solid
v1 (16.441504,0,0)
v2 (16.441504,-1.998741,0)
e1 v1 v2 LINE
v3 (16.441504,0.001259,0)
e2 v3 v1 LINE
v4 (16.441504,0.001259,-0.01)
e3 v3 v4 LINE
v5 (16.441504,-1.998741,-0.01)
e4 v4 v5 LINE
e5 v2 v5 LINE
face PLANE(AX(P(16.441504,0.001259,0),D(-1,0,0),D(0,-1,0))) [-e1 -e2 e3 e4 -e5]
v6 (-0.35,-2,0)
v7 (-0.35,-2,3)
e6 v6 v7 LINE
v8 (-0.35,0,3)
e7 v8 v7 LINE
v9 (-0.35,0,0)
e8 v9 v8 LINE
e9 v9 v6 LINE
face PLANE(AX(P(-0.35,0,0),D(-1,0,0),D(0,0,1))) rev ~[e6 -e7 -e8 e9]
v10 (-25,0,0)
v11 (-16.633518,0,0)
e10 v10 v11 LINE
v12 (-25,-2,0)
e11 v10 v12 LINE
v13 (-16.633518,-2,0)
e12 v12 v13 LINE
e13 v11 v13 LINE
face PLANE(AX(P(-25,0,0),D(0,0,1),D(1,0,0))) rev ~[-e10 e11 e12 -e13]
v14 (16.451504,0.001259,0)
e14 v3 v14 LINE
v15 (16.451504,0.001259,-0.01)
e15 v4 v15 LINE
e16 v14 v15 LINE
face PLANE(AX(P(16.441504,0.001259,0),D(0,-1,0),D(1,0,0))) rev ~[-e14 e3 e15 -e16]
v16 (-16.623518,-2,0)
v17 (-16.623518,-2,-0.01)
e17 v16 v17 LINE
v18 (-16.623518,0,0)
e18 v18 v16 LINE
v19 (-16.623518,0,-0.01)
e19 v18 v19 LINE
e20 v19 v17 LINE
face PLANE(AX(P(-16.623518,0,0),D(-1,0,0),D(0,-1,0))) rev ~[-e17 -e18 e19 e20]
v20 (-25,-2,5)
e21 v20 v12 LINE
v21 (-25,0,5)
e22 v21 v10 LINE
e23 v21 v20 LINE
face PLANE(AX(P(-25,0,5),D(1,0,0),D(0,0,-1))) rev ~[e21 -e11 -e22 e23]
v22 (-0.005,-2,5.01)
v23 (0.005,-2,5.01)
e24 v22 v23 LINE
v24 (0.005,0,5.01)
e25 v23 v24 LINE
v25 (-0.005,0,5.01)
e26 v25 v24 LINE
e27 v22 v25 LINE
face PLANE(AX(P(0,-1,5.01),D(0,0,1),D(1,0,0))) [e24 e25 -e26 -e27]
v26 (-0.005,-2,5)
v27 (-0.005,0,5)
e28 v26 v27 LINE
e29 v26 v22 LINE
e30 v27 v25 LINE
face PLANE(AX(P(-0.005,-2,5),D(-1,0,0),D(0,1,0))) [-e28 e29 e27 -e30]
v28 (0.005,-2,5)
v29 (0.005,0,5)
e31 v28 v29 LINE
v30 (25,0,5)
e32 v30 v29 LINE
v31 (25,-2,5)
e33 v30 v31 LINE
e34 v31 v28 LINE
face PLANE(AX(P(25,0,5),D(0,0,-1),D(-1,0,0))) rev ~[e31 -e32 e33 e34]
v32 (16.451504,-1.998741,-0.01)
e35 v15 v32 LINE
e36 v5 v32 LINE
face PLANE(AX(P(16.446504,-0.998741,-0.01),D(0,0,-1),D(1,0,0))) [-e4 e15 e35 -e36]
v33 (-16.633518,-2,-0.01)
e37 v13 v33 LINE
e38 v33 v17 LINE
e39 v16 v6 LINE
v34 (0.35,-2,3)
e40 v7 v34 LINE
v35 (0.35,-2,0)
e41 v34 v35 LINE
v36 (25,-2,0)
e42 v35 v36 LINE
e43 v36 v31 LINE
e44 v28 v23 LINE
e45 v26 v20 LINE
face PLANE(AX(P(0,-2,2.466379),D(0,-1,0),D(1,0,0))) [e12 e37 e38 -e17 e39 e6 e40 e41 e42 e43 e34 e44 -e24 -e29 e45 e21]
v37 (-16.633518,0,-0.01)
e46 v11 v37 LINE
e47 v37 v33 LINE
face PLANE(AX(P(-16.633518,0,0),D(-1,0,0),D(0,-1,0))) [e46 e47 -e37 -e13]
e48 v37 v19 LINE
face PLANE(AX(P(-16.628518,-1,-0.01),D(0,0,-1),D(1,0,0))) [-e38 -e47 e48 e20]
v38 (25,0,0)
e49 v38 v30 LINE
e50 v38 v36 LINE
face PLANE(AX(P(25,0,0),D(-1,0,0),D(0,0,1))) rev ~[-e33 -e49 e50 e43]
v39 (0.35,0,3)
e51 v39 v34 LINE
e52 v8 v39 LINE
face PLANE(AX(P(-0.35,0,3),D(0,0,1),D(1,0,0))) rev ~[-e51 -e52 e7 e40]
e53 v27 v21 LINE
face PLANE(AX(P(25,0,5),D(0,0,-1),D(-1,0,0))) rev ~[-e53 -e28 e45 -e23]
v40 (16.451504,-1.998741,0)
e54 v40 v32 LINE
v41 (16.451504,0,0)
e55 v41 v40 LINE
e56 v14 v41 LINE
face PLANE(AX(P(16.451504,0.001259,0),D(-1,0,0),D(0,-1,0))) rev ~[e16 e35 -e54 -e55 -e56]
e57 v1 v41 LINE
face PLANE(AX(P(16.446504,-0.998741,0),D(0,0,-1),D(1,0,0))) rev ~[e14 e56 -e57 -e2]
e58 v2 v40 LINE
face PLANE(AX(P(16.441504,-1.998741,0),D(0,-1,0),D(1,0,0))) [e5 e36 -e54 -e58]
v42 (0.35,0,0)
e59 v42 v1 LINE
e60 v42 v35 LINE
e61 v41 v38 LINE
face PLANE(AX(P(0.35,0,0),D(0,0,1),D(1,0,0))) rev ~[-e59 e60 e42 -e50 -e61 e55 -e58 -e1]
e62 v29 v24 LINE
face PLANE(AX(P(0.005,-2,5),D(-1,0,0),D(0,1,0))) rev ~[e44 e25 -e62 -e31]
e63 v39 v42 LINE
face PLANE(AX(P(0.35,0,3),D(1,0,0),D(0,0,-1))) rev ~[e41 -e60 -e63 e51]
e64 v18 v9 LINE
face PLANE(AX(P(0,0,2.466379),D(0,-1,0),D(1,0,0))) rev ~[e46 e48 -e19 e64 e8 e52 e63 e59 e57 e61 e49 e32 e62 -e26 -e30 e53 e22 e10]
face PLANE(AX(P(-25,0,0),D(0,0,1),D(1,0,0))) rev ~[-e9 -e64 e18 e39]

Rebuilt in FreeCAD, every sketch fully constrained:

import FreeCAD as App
import Part
import Sketcher
from FreeCAD import Vector

doc = App.newDocument("Part")
body = doc.addObject("PartDesign::Body", "Body")

# Sketch on XZ plane
sketch1 = body.newObject("Sketcher::SketchObject", "Sketch")
sketch1.AttachmentSupport = (doc.getObject("XZ_Plane"), [""])
sketch1.MapMode = "FlatFace"
sketch1.addGeometry([
    Part.LineSegment(Vector(0.35, 3, 0), Vector(0.35, 0, 0)),  # 0
    Part.LineSegment(Vector(0.35, 0, 0), Vector(25, 0, 0)),  # 1
    Part.LineSegment(Vector(25, 0, 0), Vector(25, 5, 0)),  # 2
    Part.LineSegment(Vector(25, 5, 0), Vector(-25, 5, 0)),  # 3
    Part.LineSegment(Vector(-25, 5, 0), Vector(-25, 0, 0)),  # 4
    Part.LineSegment(Vector(-25, 0, 0), Vector(-0.35, 0, 0)),  # 5
    Part.LineSegment(Vector(-0.35, 0, 0), Vector(-0.35, 3, 0)),  # 6
    Part.LineSegment(Vector(-0.35, 3, 0), Vector(0.35, 3, 0)),  # 7
], False)
sketch1.addConstraint([
    Sketcher.Constraint("Coincident", 0, 2, 1, 1),
    Sketcher.Constraint("Coincident", 1, 2, 2, 1),
    Sketcher.Constraint("Coincident", 2, 2, 3, 1),
    Sketcher.Constraint("Coincident", 3, 2, 4, 1),
    Sketcher.Constraint("Coincident", 4, 2, 5, 1),
    Sketcher.Constraint("Coincident", 5, 2, 6, 1),
    Sketcher.Constraint("Coincident", 6, 2, 7, 1),
    Sketcher.Constraint("Coincident", 7, 2, 0, 1),
    Sketcher.Constraint("Vertical", 0),
    Sketcher.Constraint("Horizontal", 1),
    Sketcher.Constraint("Vertical", 2),
    Sketcher.Constraint("Horizontal", 3),
    Sketcher.Constraint("Vertical", 4),
    Sketcher.Constraint("Horizontal", 5),
    Sketcher.Constraint("Vertical", 6),
    Sketcher.Constraint("Horizontal", 7),
    Sketcher.Constraint("Symmetric", 1, 2, 4, 2, -1, 1),
    Sketcher.Constraint("Symmetric", 0, 2, 5, 2, -2),
    Sketcher.Constraint("DistanceX", 3, 2, 3, 1, 50.0),
    Sketcher.Constraint("DistanceY", 0, 2, 0, 1, 3.0),
    Sketcher.Constraint("DistanceY", 2, 1, 2, 2, 5.0),
    Sketcher.Constraint("DistanceX", 7, 1, 7, 2, 0.7),
])
pad1 = body.newObject("PartDesign::Pad", "Pad")
pad1.Profile = sketch1
pad1.Length = 2

# Sketch on XY plane
sketch2 = body.newObject("Sketcher::SketchObject", "Sketch001")
sketch2.AttachmentSupport = (doc.getObject("XY_Plane"), [""])
sketch2.MapMode = "FlatFace"
sketch2.addGeometry([
    Part.LineSegment(Vector(16.441504, -1.998741, 0), Vector(16.441504, 0.001259, 0)),  # 0
    Part.LineSegment(Vector(16.441504, 0.001259, 0), Vector(16.451504, 0.001259, 0)),  # 1
    Part.LineSegment(Vector(16.451504, 0.001259, 0), Vector(16.451504, -1.998741, 0)),  # 2
    Part.LineSegment(Vector(16.451504, -1.998741, 0), Vector(16.441504, -1.998741, 0)),  # 3
    Part.LineSegment(Vector(-16.633518, -2, 0), Vector(-16.633518, 0, 0)),  # 4
    Part.LineSegment(Vector(-16.633518, 0, 0), Vector(-16.623518, 0, 0)),  # 5
    Part.LineSegment(Vector(-16.623518, 0, 0), Vector(-16.623518, -2, 0)),  # 6
    Part.LineSegment(Vector(-16.623518, -2, 0), Vector(-16.633518, -2, 0)),  # 7
], False)
sketch2.addConstraint([
    Sketcher.Constraint("Coincident", 0, 2, 1, 1),
    Sketcher.Constraint("Coincident", 1, 2, 2, 1),
    Sketcher.Constraint("Coincident", 2, 2, 3, 1),
    Sketcher.Constraint("Coincident", 3, 2, 0, 1),
    Sketcher.Constraint("Coincident", 4, 2, 5, 1),
    Sketcher.Constraint("Coincident", 5, 2, 6, 1),
    Sketcher.Constraint("Coincident", 6, 2, 7, 1),
    Sketcher.Constraint("Coincident", 7, 2, 4, 1),
    Sketcher.Constraint("Vertical", 0),
    Sketcher.Constraint("Horizontal", 1),
    Sketcher.Constraint("Vertical", 2),
    Sketcher.Constraint("Horizontal", 3),
    Sketcher.Constraint("Vertical", 4),
    Sketcher.Constraint("Horizontal", 5),
    Sketcher.Constraint("Vertical", 6),
    Sketcher.Constraint("Horizontal", 7),
    Sketcher.Constraint("PointOnObject", 4, 2, -1),
    Sketcher.Constraint("Equal", 3, 5),
    Sketcher.Constraint("Equal", 2, 4),
    Sketcher.Constraint("DistanceY", 0, 1, 0, 2, 2.0),
    Sketcher.Constraint("DistanceX", 1, 1, 1, 2, 0.01),
    Sketcher.Constraint("DistanceY", -1, 1, 0, 2, 0.001259),
    Sketcher.Constraint("DistanceX", 5, 2, -1, 1, 16.623518),
    Sketcher.Constraint("DistanceX", 4, 2, 0, 2, 33.075022),
])
pad2 = body.newObject("PartDesign::Pad", "Pad001")
pad2.Profile = sketch2
pad2.Length = 0.01
pad2.Reversed = True

# Sketch on XY plane
sketch3 = body.newObject("Sketcher::SketchObject", "Sketch002")
sketch3.AttachmentSupport = (doc.getObject("XY_Plane"), [""])
sketch3.MapMode = "FlatFace"
sketch3.AttachmentOffset = App.Placement(Vector(0, 0, 5), App.Rotation())
sketch3.addGeometry([
    Part.LineSegment(Vector(-0.005, 0, 0), Vector(-0.005, -2, 0)),
    Part.LineSegment(Vector(-0.005, -2, 0), Vector(0.005, -2, 0)),
    Part.LineSegment(Vector(0.005, -2, 0), Vector(0.005, 0, 0)),
    Part.LineSegment(Vector(0.005, 0, 0), Vector(-0.005, 0, 0)),
], False)
sketch3.addConstraint([
    Sketcher.Constraint("Coincident", 0, 2, 1, 1),
    Sketcher.Constraint("Coincident", 1, 2, 2, 1),
    Sketcher.Constraint("Coincident", 2, 2, 3, 1),
    Sketcher.Constraint("Coincident", 3, 2, 0, 1),
    Sketcher.Constraint("Vertical", 0),
    Sketcher.Constraint("Horizontal", 1),
    Sketcher.Constraint("Vertical", 2),
    Sketcher.Constraint("Horizontal", 3),
    Sketcher.Constraint("Symmetric", 2, 2, 3, 2, -1, 1),
    Sketcher.Constraint("DistanceY", 0, 2, 0, 1, 2.0),
    Sketcher.Constraint("DistanceX", 1, 1, 1, 2, 0.01),
])
pad3 = body.newObject("PartDesign::Pad", "Pad002")
pad3.Profile = sketch3
pad3.Length = 0.01

doc.recompute()
